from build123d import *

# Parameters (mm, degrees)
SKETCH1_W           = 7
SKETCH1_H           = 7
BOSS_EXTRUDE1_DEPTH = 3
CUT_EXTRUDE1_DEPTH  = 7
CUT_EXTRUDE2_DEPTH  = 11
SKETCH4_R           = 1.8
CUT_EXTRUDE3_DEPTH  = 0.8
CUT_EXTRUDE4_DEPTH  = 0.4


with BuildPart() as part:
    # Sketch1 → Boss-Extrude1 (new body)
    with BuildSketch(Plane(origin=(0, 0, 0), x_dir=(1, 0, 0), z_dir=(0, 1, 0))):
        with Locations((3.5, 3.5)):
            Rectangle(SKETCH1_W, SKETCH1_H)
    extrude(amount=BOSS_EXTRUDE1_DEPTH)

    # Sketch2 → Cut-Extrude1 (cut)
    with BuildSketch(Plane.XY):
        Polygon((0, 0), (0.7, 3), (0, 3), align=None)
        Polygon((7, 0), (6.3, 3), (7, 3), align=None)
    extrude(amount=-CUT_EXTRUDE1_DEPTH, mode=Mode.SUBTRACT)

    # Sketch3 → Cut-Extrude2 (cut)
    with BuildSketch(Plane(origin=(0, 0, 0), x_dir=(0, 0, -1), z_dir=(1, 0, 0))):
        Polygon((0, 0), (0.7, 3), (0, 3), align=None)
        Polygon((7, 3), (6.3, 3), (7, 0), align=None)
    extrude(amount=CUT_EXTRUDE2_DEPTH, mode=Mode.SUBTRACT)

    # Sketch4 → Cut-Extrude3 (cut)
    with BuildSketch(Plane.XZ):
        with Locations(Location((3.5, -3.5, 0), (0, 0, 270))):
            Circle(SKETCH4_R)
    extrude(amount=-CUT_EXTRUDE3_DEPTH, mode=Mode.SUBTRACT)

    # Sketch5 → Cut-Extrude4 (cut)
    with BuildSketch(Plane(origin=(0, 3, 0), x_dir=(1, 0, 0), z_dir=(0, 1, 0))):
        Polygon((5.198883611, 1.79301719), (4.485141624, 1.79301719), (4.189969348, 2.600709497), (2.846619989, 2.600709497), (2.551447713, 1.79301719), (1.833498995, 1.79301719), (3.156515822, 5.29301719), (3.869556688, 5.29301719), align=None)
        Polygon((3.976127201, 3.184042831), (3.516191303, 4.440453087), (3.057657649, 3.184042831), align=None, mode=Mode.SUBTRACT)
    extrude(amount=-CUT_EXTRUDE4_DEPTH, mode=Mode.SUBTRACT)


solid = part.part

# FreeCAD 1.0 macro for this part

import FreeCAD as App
import Part
import Sketcher
Q = App.Units.Quantity


def add_polygon(sketch, points):
    """Adds a closed chain of lines whose ends are joined by coincident constraints."""
    first, n = sketch.GeometryCount, len(points)
    for a, b in zip(points, points[1:] + points[:1]):
        sketch.addGeometry(Part.LineSegment(App.Vector(*a, 0), App.Vector(*b, 0)), False)
    for i in range(n):
        sketch.addConstraint(Sketcher.Constraint("Coincident", first + i, 2, first + (i + 1) % n, 1))

doc = App.newDocument("Part")
body = doc.addObject("PartDesign::Body", "Body")

sketch1 = body.newObject("Sketcher::SketchObject", "Sketch")
sketch1.AttachmentSupport = (doc.getObject("XZ_Plane"), [""])
sketch1.MapMode = "FlatFace"
add_polygon(sketch1, [(0, -7), (0, 0), (7, 0), (7, -7)])
sketch1.addConstraint([
    Sketcher.Constraint("Vertical", 0),
    Sketcher.Constraint("Horizontal", 1),
    Sketcher.Constraint("Vertical", 2),
    Sketcher.Constraint("Horizontal", 3),
    Sketcher.Constraint("Coincident", 0, 2, -1, 1),
    Sketcher.Constraint("Equal", 3, 0),
    Sketcher.Constraint("DistanceX", 1, 1, 1, 2, Q("7 mm")),
])
pad1 = body.newObject("PartDesign::Pad", "Pad")
pad1.Profile = sketch1
pad1.Length = 3
pad1.Reversed = True

sketch2 = body.newObject("Sketcher::SketchObject", "Sketch001")
sketch2.AttachmentSupport = (doc.getObject("XY_Plane"), [""])
sketch2.MapMode = "FlatFace"
add_polygon(sketch2, [(0, 0), (0.7, 3), (0, 3)])
add_polygon(sketch2, [(6.3, 3), (7, 0), (7, 3)])
sketch2.addConstraint([
    Sketcher.Constraint("Horizontal", 1),
    Sketcher.Constraint("Vertical", 2),
    Sketcher.Constraint("Vertical", 4),
    Sketcher.Constraint("Horizontal", 5),
    Sketcher.Constraint("Coincident", 2, 2, -1, 1),
    Sketcher.Constraint("PointOnObject", 3, 2, -1),
    Sketcher.Constraint("Horizontal", 1, 2, 4, 2),
    Sketcher.Constraint("Equal", 1, 5),
    Sketcher.Constraint("DistanceY", 2, 2, 2, 1, Q("3 mm")),
    Sketcher.Constraint("DistanceX", 1, 2, 1, 1, Q("0.7 mm")),
    Sketcher.Constraint("DistanceX", -1, 1, 3, 2, Q("7 mm")),
])
pocket1 = body.newObject("PartDesign::Pocket", "Pocket")
pocket1.Profile = sketch2
pocket1.Length = 7

sketch3 = body.newObject("Sketcher::SketchObject", "Sketch002")
sketch3.AttachmentSupport = (doc.getObject("YZ_Plane"), [""])
sketch3.MapMode = "FlatFace"
add_polygon(sketch3, [(0, 0), (3, -0.7), (3, 0)])
add_polygon(sketch3, [(3, -7), (3, -6.3), (0, -7)])
sketch3.addConstraint([
    Sketcher.Constraint("Vertical", 1),
    Sketcher.Constraint("Horizontal", 2),
    Sketcher.Constraint("Vertical", 3),
    Sketcher.Constraint("Horizontal", 5),
    Sketcher.Constraint("Coincident", 2, 2, -1, 1),
    Sketcher.Constraint("PointOnObject", 4, 2, -2),
    Sketcher.Constraint("Vertical", 1, 2, 3, 2),
    Sketcher.Constraint("Equal", 1, 3),
    Sketcher.Constraint("DistanceX", 2, 2, 2, 1, Q("3 mm")),
    Sketcher.Constraint("DistanceY", 1, 1, 1, 2, Q("0.7 mm")),
    Sketcher.Constraint("DistanceY", 4, 2, -1, 1, Q("7 mm")),
])
pocket2 = body.newObject("PartDesign::Pocket", "Pocket001")
pocket2.Profile = sketch3
pocket2.Length = 11
pocket2.Reversed = True

sketch4 = body.newObject("Sketcher::SketchObject", "Sketch003")
sketch4.AttachmentSupport = (doc.getObject("XZ_Plane"), [""])
sketch4.MapMode = "FlatFace"
sketch4.addGeometry(Part.Circle(App.Vector(3.5, -3.5, 0), App.Vector(0, 0, 1), 1.8), False)
sketch4.addConstraint([
    Sketcher.Constraint("Diameter", 0, Q("3.6 mm")),
    Sketcher.Constraint("DistanceX", -1, 1, 0, 3, Q("3.5 mm")),
    Sketcher.Constraint("DistanceY", 0, 3, -1, 1, Q("3.5 mm")),
])
pocket3 = body.newObject("PartDesign::Pocket", "Pocket002")
pocket3.Profile = sketch4
pocket3.Length = 0.8

sketch5 = body.newObject("Sketcher::SketchObject", "Sketch004")
sketch5.AttachmentSupport = (doc.getObject("XZ_Plane"), [""])
sketch5.MapMode = "FlatFace"
sketch5.AttachmentOffset = App.Placement(App.Vector(0, 0, -3), App.Rotation())
add_polygon(sketch5, [(4.5, -1.8), (5.2, -1.8), (3.9, -5.3), (3.2, -5.3), (1.8, -1.8), (2.6, -1.8), (2.8, -2.6), (4.2, -2.6)])
add_polygon(sketch5, [(4, -3.2), (3.1, -3.2), (3.5, -4.4)])
sketch5.addConstraint([
    Sketcher.Constraint("Horizontal", 0),
    Sketcher.Constraint("Horizontal", 2),
    Sketcher.Constraint("Horizontal", 4),
    Sketcher.Constraint("Horizontal", 6),
    Sketcher.Constraint("Horizontal", 8),
    Sketcher.Constraint("Horizontal", 0, 2, 3, 2),
    Sketcher.Constraint("Equal", 5, 7),
    Sketcher.Constraint("DistanceY", 1, 2, 0, 2, Q("3.5 mm")),
    Sketcher.Constraint("DistanceX", 0, 1, 0, 2, Q("0.713742 mm")),
    Sketcher.Constraint("DistanceX", 2, 2, 2, 1, Q("0.713041 mm")),
    Sketcher.Constraint("DistanceX", 4, 1, 4, 2, Q("0.717949 mm")),
    Sketcher.Constraint("DistanceX", 6, 1, 6, 2, Q("1.343349 mm")),
    Sketcher.Constraint("DistanceX", 8, 2, 8, 1, Q("0.91847 mm")),
    Sketcher.Constraint("DistanceX", -1, 1, 3, 2, Q("1.833499 mm")),
    Sketcher.Constraint("Distance", 5, Q("0.859938 mm")),
    Sketcher.Constraint("Distance", 10, Q("1.337949 mm")),
    Sketcher.Constraint("DistanceX", -1, 1, 5, 2, Q("2.84662 mm")),
    Sketcher.Constraint("DistanceY", 5, 2, -1, 1, Q("2.600709 mm")),
    Sketcher.Constraint("DistanceX", -1, 1, 9, 2, Q("3.516191 mm")),
    Sketcher.Constraint("DistanceX", 4, 2, 2, 2, Q("0.605068 mm")),
    Sketcher.Constraint("DistanceX", 8, 2, 6, 2, Q("1.132312 mm")),
    Sketcher.Constraint("DistanceY", 8, 2, -1, 1, Q("3.184043 mm")),
])
pocket4 = body.newObject("PartDesign::Pocket", "Pocket003")
pocket4.Profile = sketch5
pocket4.Length = 0.4
pocket4.Reversed = True

doc.recompute()
